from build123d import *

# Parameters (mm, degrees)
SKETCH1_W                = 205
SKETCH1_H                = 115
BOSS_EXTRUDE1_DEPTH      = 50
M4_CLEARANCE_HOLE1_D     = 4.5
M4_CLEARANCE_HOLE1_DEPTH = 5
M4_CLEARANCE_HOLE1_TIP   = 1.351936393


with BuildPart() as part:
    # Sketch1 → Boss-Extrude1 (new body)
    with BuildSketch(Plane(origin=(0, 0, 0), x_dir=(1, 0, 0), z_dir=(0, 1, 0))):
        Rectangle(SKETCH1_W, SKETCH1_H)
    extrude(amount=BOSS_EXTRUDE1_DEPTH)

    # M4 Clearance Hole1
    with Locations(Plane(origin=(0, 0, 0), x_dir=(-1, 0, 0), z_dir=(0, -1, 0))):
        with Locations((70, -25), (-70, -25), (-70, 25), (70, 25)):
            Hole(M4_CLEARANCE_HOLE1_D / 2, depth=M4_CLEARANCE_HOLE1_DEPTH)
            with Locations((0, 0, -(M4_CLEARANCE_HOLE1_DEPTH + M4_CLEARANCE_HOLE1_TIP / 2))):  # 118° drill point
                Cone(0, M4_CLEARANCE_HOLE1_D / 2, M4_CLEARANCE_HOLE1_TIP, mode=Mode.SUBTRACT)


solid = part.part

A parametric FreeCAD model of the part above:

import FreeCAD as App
import Part
import Sketcher
from FreeCAD import Vector


def add_polygon(sketch, points):
    """Adds a closed chain of lines whose ends are joined by coincident constraints."""
    first, n = sketch.GeometryCount, len(points)
    for a, b in zip(points, points[1:] + points[:1]):
        sketch.addGeometry(Part.LineSegment(App.Vector(*a, 0), App.Vector(*b, 0)), False)
    for i in range(n):
        sketch.addConstraint(Sketcher.Constraint("Coincident", first + i, 2, first + (i + 1) % n, 1))

doc = App.newDocument("Part")
body = doc.addObject("PartDesign::Body", "Body")

sketch1 = doc.addObject("Sketcher::SketchObject", "Sketch")
body.addObject(sketch1)
sketch1.AttachmentSupport = (doc.XZ_Plane, [""])
sketch1.MapMode = "FlatFace"
add_polygon(sketch1, [(-102, -58), (-102, 58), (102, 58), (102, -58)])
sketch1.addConstraint(Sketcher.Constraint("Vertical", 0))
sketch1.addConstraint(Sketcher.Constraint("Horizontal", 1))
sketch1.addConstraint(Sketcher.Constraint("Vertical", 2))
sketch1.addConstraint(Sketcher.Constraint("Horizontal", 3))
sketch1.addConstraint(Sketcher.Constraint("Symmetric", 0, 2, 2, 2, -1, 1))
sketch1.addConstraint(Sketcher.Constraint("DistanceX", 1, 1, 1, 2, 205.0))
sketch1.addConstraint(Sketcher.Constraint("DistanceY", 0, 1, 0, 2, 115.0))
pad1 = doc.addObject("PartDesign::Pad", "Pad")
body.addObject(pad1)
pad1.Profile = sketch1
pad1.Length = 50
pad1.Reversed = True

sketch2 = doc.addObject("Sketcher::SketchObject", "Sketch001")
body.addObject(sketch2)
sketch2.AttachmentSupport = (doc.XZ_Plane, [""])
sketch2.MapMode = "FlatFace"
sketch2.addGeometry(Part.Circle(Vector(-70, 25, 0), Vector(0, 0, 1), 2.2), False)
sketch2.addGeometry(Part.Circle(Vector(70, 25, 0), Vector(0, 0, 1), 2.2), False)
sketch2.addGeometry(Part.Circle(Vector(70, -25, 0), Vector(0, 0, 1), 2.2), False)
sketch2.addGeometry(Part.Circle(Vector(-70, -25, 0), Vector(0, 0, 1), 2.2), False)
sketch2.addConstraint(Sketcher.Constraint("Equal", 0, 1))
sketch2.addConstraint(Sketcher.Constraint("Equal", 1, 2))
sketch2.addConstraint(Sketcher.Constraint("Equal", 2, 3))
sketch2.addConstraint(Sketcher.Constraint("Symmetric", 0, 3, 2, 3, -1, 1))
sketch2.addConstraint(Sketcher.Constraint("Symmetric", 1, 3, 3, 3, -1, 1))
sketch2.addConstraint(Sketcher.Constraint("Symmetric", 0, 3, 1, 3, -2))
sketch2.addConstraint(Sketcher.Constraint("Diameter", 0, 4.5))
sketch2.addConstraint(Sketcher.Constraint("DistanceX", 0, 3, -1, 1, 70.0))
sketch2.addConstraint(Sketcher.Constraint("DistanceY", -1, 1, 0, 3, 25.0))
doc.recompute()
hole = doc.addObject("PartDesign::Hole", "Hole")
body.addObject(hole)
hole.Profile = sketch2
hole.ThreadType = "None"
hole.Diameter = 4.5
hole.DepthType = "Dimension"
hole.Depth = 5
hole.DrillPoint = "Angled"
hole.DrillPointAngle = 118

doc.recompute()
